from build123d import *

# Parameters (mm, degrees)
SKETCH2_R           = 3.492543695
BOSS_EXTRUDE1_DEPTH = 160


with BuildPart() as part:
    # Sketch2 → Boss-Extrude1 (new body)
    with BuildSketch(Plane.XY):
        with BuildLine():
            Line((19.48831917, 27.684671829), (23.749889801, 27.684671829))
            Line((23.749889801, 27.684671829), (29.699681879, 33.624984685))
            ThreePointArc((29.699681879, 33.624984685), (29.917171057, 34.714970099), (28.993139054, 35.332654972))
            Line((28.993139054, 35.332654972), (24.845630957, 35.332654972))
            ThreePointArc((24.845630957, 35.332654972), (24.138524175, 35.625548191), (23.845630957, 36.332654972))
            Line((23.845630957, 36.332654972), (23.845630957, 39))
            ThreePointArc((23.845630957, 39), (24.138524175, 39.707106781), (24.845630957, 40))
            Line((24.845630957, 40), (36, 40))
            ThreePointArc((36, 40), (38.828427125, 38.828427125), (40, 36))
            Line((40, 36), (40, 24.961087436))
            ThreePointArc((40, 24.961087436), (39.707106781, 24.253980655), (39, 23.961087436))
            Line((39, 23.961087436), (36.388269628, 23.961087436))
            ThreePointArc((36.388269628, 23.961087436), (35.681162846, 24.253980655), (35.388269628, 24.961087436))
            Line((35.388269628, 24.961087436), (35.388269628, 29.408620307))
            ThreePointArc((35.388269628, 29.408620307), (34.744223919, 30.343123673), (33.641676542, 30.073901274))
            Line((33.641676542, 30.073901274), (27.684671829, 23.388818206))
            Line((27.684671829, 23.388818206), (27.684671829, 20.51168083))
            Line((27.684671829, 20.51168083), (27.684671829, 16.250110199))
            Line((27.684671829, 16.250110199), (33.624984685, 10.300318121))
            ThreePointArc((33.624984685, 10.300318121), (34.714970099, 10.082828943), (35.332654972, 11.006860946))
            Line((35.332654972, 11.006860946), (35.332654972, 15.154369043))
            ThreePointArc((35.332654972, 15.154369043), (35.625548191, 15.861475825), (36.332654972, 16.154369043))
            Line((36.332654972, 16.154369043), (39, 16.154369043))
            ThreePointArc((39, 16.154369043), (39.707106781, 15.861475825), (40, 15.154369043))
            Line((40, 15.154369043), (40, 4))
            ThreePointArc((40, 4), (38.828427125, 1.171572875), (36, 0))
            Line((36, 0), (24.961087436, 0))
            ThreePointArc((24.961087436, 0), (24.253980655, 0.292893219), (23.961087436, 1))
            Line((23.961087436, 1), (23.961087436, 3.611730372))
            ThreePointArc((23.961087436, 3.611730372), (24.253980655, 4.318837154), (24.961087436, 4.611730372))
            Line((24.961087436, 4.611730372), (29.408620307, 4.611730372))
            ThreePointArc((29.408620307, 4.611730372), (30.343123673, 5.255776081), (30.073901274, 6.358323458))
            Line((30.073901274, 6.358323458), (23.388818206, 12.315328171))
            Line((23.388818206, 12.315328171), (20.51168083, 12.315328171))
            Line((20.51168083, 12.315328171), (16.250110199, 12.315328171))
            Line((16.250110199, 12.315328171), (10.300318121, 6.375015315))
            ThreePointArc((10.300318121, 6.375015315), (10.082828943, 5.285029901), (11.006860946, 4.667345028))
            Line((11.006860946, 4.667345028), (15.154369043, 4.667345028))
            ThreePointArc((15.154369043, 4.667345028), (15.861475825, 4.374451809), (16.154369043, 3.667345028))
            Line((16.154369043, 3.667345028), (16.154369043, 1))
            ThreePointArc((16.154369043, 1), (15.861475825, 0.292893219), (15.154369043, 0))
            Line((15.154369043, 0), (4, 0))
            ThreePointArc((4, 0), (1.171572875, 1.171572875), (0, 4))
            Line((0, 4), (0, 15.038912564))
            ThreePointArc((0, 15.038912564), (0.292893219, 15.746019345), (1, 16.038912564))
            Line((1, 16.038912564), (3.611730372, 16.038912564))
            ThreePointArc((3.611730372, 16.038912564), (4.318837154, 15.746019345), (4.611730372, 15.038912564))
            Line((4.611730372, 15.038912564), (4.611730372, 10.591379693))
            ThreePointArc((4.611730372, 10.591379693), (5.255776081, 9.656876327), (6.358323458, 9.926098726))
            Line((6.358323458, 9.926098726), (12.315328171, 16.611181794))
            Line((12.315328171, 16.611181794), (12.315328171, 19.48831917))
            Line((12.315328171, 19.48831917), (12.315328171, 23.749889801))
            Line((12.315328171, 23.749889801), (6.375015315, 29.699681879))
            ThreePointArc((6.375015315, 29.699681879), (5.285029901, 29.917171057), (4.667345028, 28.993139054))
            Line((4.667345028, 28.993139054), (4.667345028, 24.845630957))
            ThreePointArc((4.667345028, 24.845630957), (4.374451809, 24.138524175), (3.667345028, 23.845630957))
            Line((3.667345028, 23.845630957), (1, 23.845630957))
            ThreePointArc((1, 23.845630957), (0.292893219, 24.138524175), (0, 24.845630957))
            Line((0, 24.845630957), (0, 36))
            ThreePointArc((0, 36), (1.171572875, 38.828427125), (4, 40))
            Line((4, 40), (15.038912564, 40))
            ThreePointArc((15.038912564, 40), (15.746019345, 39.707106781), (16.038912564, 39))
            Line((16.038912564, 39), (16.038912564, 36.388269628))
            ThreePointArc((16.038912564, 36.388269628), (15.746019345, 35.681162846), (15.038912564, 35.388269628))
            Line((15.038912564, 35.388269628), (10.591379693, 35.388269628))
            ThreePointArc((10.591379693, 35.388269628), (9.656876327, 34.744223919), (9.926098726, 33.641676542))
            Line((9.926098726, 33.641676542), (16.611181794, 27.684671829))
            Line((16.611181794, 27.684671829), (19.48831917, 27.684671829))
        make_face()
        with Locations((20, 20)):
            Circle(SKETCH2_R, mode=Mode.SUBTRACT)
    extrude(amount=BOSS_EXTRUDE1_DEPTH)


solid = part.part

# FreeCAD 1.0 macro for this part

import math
import FreeCAD as App
import Part
import Sketcher

doc = App.newDocument("Part")
params = doc.addObject("Spreadsheet::Sheet", "Params")
for row, (alias, value) in enumerate([
    ("sketch1_radius", "1 mm"),
    ("sketch1_radius2", "4 mm"),
    ("pad1_length", "160 mm"),
], start=1):
    params.set(f"A{row}", alias)
    params.set(f"B{row}", "=" + value)
    params.setAlias(f"B{row}", alias)

body = doc.addObject("PartDesign::Body", "Body")

# Sketch on XY plane
sketch1 = doc.addObject("Sketcher::SketchObject", "Sketch")
body.addObject(sketch1)
sketch1.AttachmentSupport = (doc.XY_Plane, [""])
sketch1.MapMode = "FlatFace"
sketch1.addGeometry(Part.LineSegment(App.Vector(29.7, 33.6, 0), App.Vector(23.7, 27.7, 0)), False)
sketch1.addGeometry(Part.LineSegment(App.Vector(23.7, 27.7, 0), App.Vector(16.6, 27.7, 0)), False)
sketch1.addGeometry(Part.LineSegment(App.Vector(16.6, 27.7, 0), App.Vector(9.9, 33.6, 0)), False)
sketch1.addGeometry(Part.ArcOfCircle(Part.Circle(App.Vector(10.6, 34.4, 0), App.Vector(0, 0, 1), 1), math.radians(90), math.radians(228)), False)
sketch1.addGeometry(Part.LineSegment(App.Vector(10.6, 35.4, 0), App.Vector(15, 35.4, 0)), False)
sketch1.addGeometry(Part.ArcOfCircle(Part.Circle(App.Vector(15, 36.4, 0), App.Vector(0, 0, 1), 1), math.radians(-90), math.radians(0)), False)
sketch1.addGeometry(Part.LineSegment(App.Vector(16, 36.4, 0), App.Vector(16, 39, 0)), False)
sketch1.addGeometry(Part.ArcOfCircle(Part.Circle(App.Vector(15, 39, 0), App.Vector(0, 0, 1), 1), math.radians(0), math.radians(90)), False)
sketch1.addGeometry(Part.LineSegment(App.Vector(15, 40, 0), App.Vector(4, 40, 0)), False)
sketch1.addGeometry(Part.ArcOfCircle(Part.Circle(App.Vector(4, 36, 0), App.Vector(0, 0, 1), 4), math.radians(90), math.radians(180)), False)
sketch1.addGeometry(Part.LineSegment(App.Vector(0, 36, 0), App.Vector(0, 24.8, 0)), False)
sketch1.addGeometry(Part.ArcOfCircle(Part.Circle(App.Vector(1, 24.8, 0), App.Vector(0, 0, 1), 1), math.radians(180), math.radians(270)), False)
sketch1.addGeometry(Part.LineSegment(App.Vector(1, 23.8, 0), App.Vector(3.7, 23.8, 0)), False)
sketch1.addGeometry(Part.ArcOfCircle(Part.Circle(App.Vector(3.7, 24.8, 0), App.Vector(0, 0, 1), 1), math.radians(-90), math.radians(0)), False)
sketch1.addGeometry(Part.LineSegment(App.Vector(4.7, 24.8, 0), App.Vector(4.7, 29, 0)), False)
sketch1.addGeometry(Part.ArcOfCircle(Part.Circle(App.Vector(5.7, 29, 0), App.Vector(0, 0, 1), 1), math.radians(45), math.radians(180)), False)
sketch1.addGeometry(Part.LineSegment(App.Vector(6.4, 29.7, 0), App.Vector(12.3, 23.7, 0)), False)
sketch1.addGeometry(Part.LineSegment(App.Vector(12.3, 23.7, 0), App.Vector(12.3, 16.6, 0)), False)
sketch1.addGeometry(Part.LineSegment(App.Vector(12.3, 16.6, 0), App.Vector(6.4, 9.9, 0)), False)
sketch1.addGeometry(Part.ArcOfCircle(Part.Circle(App.Vector(5.6, 10.6, 0), App.Vector(0, 0, 1), 1), math.radians(-180), math.radians(-42)), False)
sketch1.addGeometry(Part.LineSegment(App.Vector(4.6, 10.6, 0), App.Vector(4.6, 15, 0)), False)
sketch1.addGeometry(Part.ArcOfCircle(Part.Circle(App.Vector(3.6, 15, 0), App.Vector(0, 0, 1), 1), math.radians(0), math.radians(90)), False)
sketch1.addGeometry(Part.LineSegment(App.Vector(3.6, 16, 0), App.Vector(1, 16, 0)), False)
sketch1.addGeometry(Part.ArcOfCircle(Part.Circle(App.Vector(1, 15, 0), App.Vector(0, 0, 1), 1), math.radians(90), math.radians(180)), False)
sketch1.addGeometry(Part.LineSegment(App.Vector(0, 15, 0), App.Vector(0, 4, 0)), False)
sketch1.addGeometry(Part.ArcOfCircle(Part.Circle(App.Vector(4, 4, 0), App.Vector(0, 0, 1), 4), math.radians(180), math.radians(270)), False)
sketch1.addGeometry(Part.LineSegment(App.Vector(4, 0, 0), App.Vector(15.2, 0, 0)), False)
sketch1.addGeometry(Part.ArcOfCircle(Part.Circle(App.Vector(15.2, 1, 0), App.Vector(0, 0, 1), 1), math.radians(-90), math.radians(0)), False)
sketch1.addGeometry(Part.LineSegment(App.Vector(16.2, 1, 0), App.Vector(16.2, 3.7, 0)), False)
sketch1.addGeometry(Part.ArcOfCircle(Part.Circle(App.Vector(15.2, 3.7, 0), App.Vector(0, 0, 1), 1), math.radians(0), math.radians(90)), False)
sketch1.addGeometry(Part.LineSegment(App.Vector(15.2, 4.7, 0), App.Vector(11, 4.7, 0)), False)
sketch1.addGeometry(Part.ArcOfCircle(Part.Circle(App.Vector(11, 5.7, 0), App.Vector(0, 0, 1), 1), math.radians(135), math.radians(270)), False)
sketch1.addGeometry(Part.LineSegment(App.Vector(10.3, 6.4, 0), App.Vector(16.3, 12.3, 0)), False)
sketch1.addGeometry(Part.LineSegment(App.Vector(16.3, 12.3, 0), App.Vector(23.4, 12.3, 0)), False)
sketch1.addGeometry(Part.LineSegment(App.Vector(23.4, 12.3, 0), App.Vector(30.1, 6.4, 0)), False)
sketch1.addGeometry(Part.ArcOfCircle(Part.Circle(App.Vector(29.4, 5.6, 0), App.Vector(0, 0, 1), 1), math.radians(-90), math.radians(48)), False)
sketch1.addGeometry(Part.LineSegment(App.Vector(29.4, 4.6, 0), App.Vector(25, 4.6, 0)), False)
sketch1.addGeometry(Part.ArcOfCircle(Part.Circle(App.Vector(25, 3.6, 0), App.Vector(0, 0, 1), 1), math.radians(90), math.radians(180)), False)
sketch1.addGeometry(Part.LineSegment(App.Vector(24, 3.6, 0), App.Vector(24, 1, 0)), False)
sketch1.addGeometry(Part.ArcOfCircle(Part.Circle(App.Vector(25, 1, 0), App.Vector(0, 0, 1), 1), math.radians(-180), math.radians(-90)), False)
sketch1.addGeometry(Part.LineSegment(App.Vector(25, 0, 0), App.Vector(36, 0, 0)), False)
sketch1.addGeometry(Part.ArcOfCircle(Part.Circle(App.Vector(36, 4, 0), App.Vector(0, 0, 1), 4), math.radians(-90), math.radians(0)), False)
sketch1.addGeometry(Part.LineSegment(App.Vector(40, 4, 0), App.Vector(40, 15.2, 0)), False)
sketch1.addGeometry(Part.ArcOfCircle(Part.Circle(App.Vector(39, 15.2, 0), App.Vector(0, 0, 1), 1), math.radians(0), math.radians(90)), False)
sketch1.addGeometry(Part.LineSegment(App.Vector(39, 16.2, 0), App.Vector(36.3, 16.2, 0)), False)
sketch1.addGeometry(Part.ArcOfCircle(Part.Circle(App.Vector(36.3, 15.2, 0), App.Vector(0, 0, 1), 1), math.radians(90), math.radians(180)), False)
sketch1.addGeometry(Part.LineSegment(App.Vector(35.3, 15.2, 0), App.Vector(35.3, 11, 0)), False)
sketch1.addGeometry(Part.ArcOfCircle(Part.Circle(App.Vector(34.3, 11, 0), App.Vector(0, 0, 1), 1), math.radians(-135), math.radians(0)), False)
sketch1.addGeometry(Part.LineSegment(App.Vector(33.6, 10.3, 0), App.Vector(27.7, 16.3, 0)), False)
sketch1.addGeometry(Part.LineSegment(App.Vector(27.7, 16.3, 0), App.Vector(27.7, 23.4, 0)), False)
sketch1.addGeometry(Part.LineSegment(App.Vector(27.7, 23.4, 0), App.Vector(33.6, 30.1, 0)), False)
sketch1.addGeometry(Part.ArcOfCircle(Part.Circle(App.Vector(34.4, 29.4, 0), App.Vector(0, 0, 1), 1), math.radians(0), math.radians(138)), False)
sketch1.addGeometry(Part.LineSegment(App.Vector(35.4, 29.4, 0), App.Vector(35.4, 25, 0)), False)
sketch1.addGeometry(Part.ArcOfCircle(Part.Circle(App.Vector(36.4, 25, 0), App.Vector(0, 0, 1), 1), math.radians(180), math.radians(270)), False)
sketch1.addGeometry(Part.LineSegment(App.Vector(36.4, 24, 0), App.Vector(39, 24, 0)), False)
sketch1.addGeometry(Part.ArcOfCircle(Part.Circle(App.Vector(39, 25, 0), App.Vector(0, 0, 1), 1), math.radians(-90), math.radians(0)), False)
sketch1.addGeometry(Part.LineSegment(App.Vector(40, 25, 0), App.Vector(40, 36, 0)), False)
sketch1.addGeometry(Part.ArcOfCircle(Part.Circle(App.Vector(36, 36, 0), App.Vector(0, 0, 1), 4), math.radians(0), math.radians(90)), False)
sketch1.addGeometry(Part.LineSegment(App.Vector(36, 40, 0), App.Vector(24.8, 40, 0)), False)
sketch1.addGeometry(Part.ArcOfCircle(Part.Circle(App.Vector(24.8, 39, 0), App.Vector(0, 0, 1), 1), math.radians(90), math.radians(180)), False)
sketch1.addGeometry(Part.LineSegment(App.Vector(23.8, 39, 0), App.Vector(23.8, 36.3, 0)), False)
sketch1.addGeometry(Part.ArcOfCircle(Part.Circle(App.Vector(24.8, 36.3, 0), App.Vector(0, 0, 1), 1), math.radians(180), math.radians(270)), False)
sketch1.addGeometry(Part.LineSegment(App.Vector(24.8, 35.3, 0), App.Vector(29, 35.3, 0)), False)
sketch1.addGeometry(Part.ArcOfCircle(Part.Circle(App.Vector(29, 34.3, 0), App.Vector(0, 0, 1), 1), math.radians(-45), math.radians(90)), False)
sketch1.addGeometry(Part.Circle(App.Vector(20, 20, 0), App.Vector(0, 0, 1), 3.5), False)
sketch1.addConstraint(Sketcher.Constraint("Coincident", 0, 2, 1, 1))
sketch1.addConstraint(Sketcher.Constraint("Coincident", 1, 2, 2, 1))
sketch1.addConstraint(Sketcher.Constraint("Tangent", 2, 2, 3, 2))
sketch1.addConstraint(Sketcher.Constraint("Tangent", 3, 1, 4, 1))
sketch1.addConstraint(Sketcher.Constraint("Tangent", 4, 2, 5, 1))
sketch1.addConstraint(Sketcher.Constraint("Tangent", 5, 2, 6, 1))
sketch1.addConstraint(Sketcher.Constraint("Tangent", 6, 2, 7, 1))
sketch1.addConstraint(Sketcher.Constraint("Tangent", 7, 2, 8, 1))
sketch1.addConstraint(Sketcher.Constraint("Tangent", 8, 2, 9, 1))
sketch1.addConstraint(Sketcher.Constraint("Tangent", 9, 2, 10, 1))
sketch1.addConstraint(Sketcher.Constraint("Tangent", 10, 2, 11, 1))
sketch1.addConstraint(Sketcher.Constraint("Tangent", 11, 2, 12, 1))
sketch1.addConstraint(Sketcher.Constraint("Tangent", 12, 2, 13, 1))
sketch1.addConstraint(Sketcher.Constraint("Tangent", 13, 2, 14, 1))
sketch1.addConstraint(Sketcher.Constraint("Tangent", 14, 2, 15, 2))
sketch1.addConstraint(Sketcher.Constraint("Tangent", 15, 1, 16, 1))
sketch1.addConstraint(Sketcher.Constraint("Coincident", 16, 2, 17, 1))
sketch1.addConstraint(Sketcher.Constraint("Coincident", 17, 2, 18, 1))
sketch1.addConstraint(Sketcher.Constraint("Tangent", 18, 2, 19, 2))
sketch1.addConstraint(Sketcher.Constraint("Tangent", 19, 1, 20, 1))
sketch1.addConstraint(Sketcher.Constraint("Tangent", 20, 2, 21, 1))
sketch1.addConstraint(Sketcher.Constraint("Tangent", 21, 2, 22, 1))
sketch1.addConstraint(Sketcher.Constraint("Tangent", 22, 2, 23, 1))
sketch1.addConstraint(Sketcher.Constraint("Tangent", 23, 2, 24, 1))
sketch1.addConstraint(Sketcher.Constraint("Tangent", 24, 2, 25, 1))
sketch1.addConstraint(Sketcher.Constraint("Tangent", 25, 2, 26, 1))
sketch1.addConstraint(Sketcher.Constraint("Tangent", 26, 2, 27, 1))
sketch1.addConstraint(Sketcher.Constraint("Tangent", 27, 2, 28, 1))
sketch1.addConstraint(Sketcher.Constraint("Tangent", 28, 2, 29, 1))
sketch1.addConstraint(Sketcher.Constraint("Tangent", 29, 2, 30, 1))
sketch1.addConstraint(Sketcher.Constraint("Tangent", 30, 2, 31, 2))
sketch1.addConstraint(Sketcher.Constraint("Tangent", 31, 1, 32, 1))
sketch1.addConstraint(Sketcher.Constraint("Coincident", 32, 2, 33, 1))
sketch1.addConstraint(Sketcher.Constraint("Coincident", 33, 2, 34, 1))
sketch1.addConstraint(Sketcher.Constraint("Tangent", 34, 2, 35, 2))
sketch1.addConstraint(Sketcher.Constraint("Tangent", 35, 1, 36, 1))
sketch1.addConstraint(Sketcher.Constraint("Tangent", 36, 2, 37, 1))
sketch1.addConstraint(Sketcher.Constraint("Tangent", 37, 2, 38, 1))
sketch1.addConstraint(Sketcher.Constraint("Tangent", 38, 2, 39, 1))
sketch1.addConstraint(Sketcher.Constraint("Tangent", 39, 2, 40, 1))
sketch1.addConstraint(Sketcher.Constraint("Tangent", 40, 2, 41, 1))
sketch1.addConstraint(Sketcher.Constraint("Tangent", 41, 2, 42, 1))
sketch1.addConstraint(Sketcher.Constraint("Tangent", 42, 2, 43, 1))
sketch1.addConstraint(Sketcher.Constraint("Tangent", 43, 2, 44, 1))
sketch1.addConstraint(Sketcher.Constraint("Tangent", 44, 2, 45, 1))
sketch1.addConstraint(Sketcher.Constraint("Tangent", 45, 2, 46, 1))
sketch1.addConstraint(Sketcher.Constraint("Tangent", 46, 2, 47, 2))
sketch1.addConstraint(Sketcher.Constraint("Tangent", 47, 1, 48, 1))
sketch1.addConstraint(Sketcher.Constraint("Coincident", 48, 2, 49, 1))
sketch1.addConstraint(Sketcher.Constraint("Coincident", 49, 2, 50, 1))
sketch1.addConstraint(Sketcher.Constraint("Tangent", 50, 2, 51, 2))
sketch1.addConstraint(Sketcher.Constraint("Tangent", 51, 1, 52, 1))
sketch1.addConstraint(Sketcher.Constraint("Tangent", 52, 2, 53, 1))
sketch1.addConstraint(Sketcher.Constraint("Tangent", 53, 2, 54, 1))
sketch1.addConstraint(Sketcher.Constraint("Tangent", 54, 2, 55, 1))
sketch1.addConstraint(Sketcher.Constraint("Tangent", 55, 2, 56, 1))
sketch1.addConstraint(Sketcher.Constraint("Tangent", 56, 2, 57, 1))
sketch1.addConstraint(Sketcher.Constraint("Tangent", 57, 2, 58, 1))
sketch1.addConstraint(Sketcher.Constraint("Tangent", 58, 2, 59, 1))
sketch1.addConstraint(Sketcher.Constraint("Tangent", 59, 2, 60, 1))
sketch1.addConstraint(Sketcher.Constraint("Tangent", 60, 2, 61, 1))
sketch1.addConstraint(Sketcher.Constraint("Tangent", 61, 2, 62, 1))
sketch1.addConstraint(Sketcher.Constraint("Tangent", 62, 2, 63, 2))
sketch1.addConstraint(Sketcher.Constraint("Tangent", 63, 1, 0, 1))
sketch1.addConstraint(Sketcher.Constraint("Horizontal", 1))
sketch1.addConstraint(Sketcher.Constraint("Horizontal", 4))
sketch1.addConstraint(Sketcher.Constraint("Vertical", 6))
sketch1.addConstraint(Sketcher.Constraint("Horizontal", 8))
sketch1.addConstraint(Sketcher.Constraint("Vertical", 10))
sketch1.addConstraint(Sketcher.Constraint("Horizontal", 12))
sketch1.addConstraint(Sketcher.Constraint("Vertical", 14))
sketch1.addConstraint(Sketcher.Constraint("Vertical", 17))
sketch1.addConstraint(Sketcher.Constraint("Vertical", 20))
sketch1.addConstraint(Sketcher.Constraint("Horizontal", 22))
sketch1.addConstraint(Sketcher.Constraint("Vertical", 24))
sketch1.addConstraint(Sketcher.Constraint("Horizontal", 26))
sketch1.addConstraint(Sketcher.Constraint("Vertical", 28))
sketch1.addConstraint(Sketcher.Constraint("Horizontal", 30))
sketch1.addConstraint(Sketcher.Constraint("Horizontal", 33))
sketch1.addConstraint(Sketcher.Constraint("Horizontal", 36))
sketch1.addConstraint(Sketcher.Constraint("Vertical", 38))
sketch1.addConstraint(Sketcher.Constraint("Horizontal", 40))
sketch1.addConstraint(Sketcher.Constraint("Vertical", 42))
sketch1.addConstraint(Sketcher.Constraint("Horizontal", 44))
sketch1.addConstraint(Sketcher.Constraint("Vertical", 46))
sketch1.addConstraint(Sketcher.Constraint("Vertical", 49))
sketch1.addConstraint(Sketcher.Constraint("Vertical", 52))
sketch1.addConstraint(Sketcher.Constraint("Horizontal", 54))
sketch1.addConstraint(Sketcher.Constraint("Vertical", 56))
sketch1.addConstraint(Sketcher.Constraint("Horizontal", 58))
sketch1.addConstraint(Sketcher.Constraint("Vertical", 60))
sketch1.addConstraint(Sketcher.Constraint("Horizontal", 62))
sketch1.addConstraint(Sketcher.Constraint("Equal", 3, 5))
sketch1.addConstraint(Sketcher.Constraint("Equal", 5, 7))
sketch1.addConstraint(Sketcher.Constraint("Equal", 7, 11))
sketch1.addConstraint(Sketcher.Constraint("Equal", 11, 13))
sketch1.addConstraint(Sketcher.Constraint("Equal", 13, 15))
sketch1.addConstraint(Sketcher.Constraint("Equal", 15, 19))
sketch1.addConstraint(Sketcher.Constraint("Equal", 19, 21))
sketch1.addConstraint(Sketcher.Constraint("Equal", 21, 23))
sketch1.addConstraint(Sketcher.Constraint("Equal", 9, 25))
sketch1.addConstraint(Sketcher.Constraint("Equal", 23, 27))
sketch1.addConstraint(Sketcher.Constraint("Equal", 27, 29))
sketch1.addConstraint(Sketcher.Constraint("Equal", 29, 31))
sketch1.addConstraint(Sketcher.Constraint("Equal", 31, 35))
sketch1.addConstraint(Sketcher.Constraint("Equal", 35, 37))
sketch1.addConstraint(Sketcher.Constraint("Equal", 37, 39))
sketch1.addConstraint(Sketcher.Constraint("Equal", 25, 41))
sketch1.addConstraint(Sketcher.Constraint("Equal", 39, 43))
sketch1.addConstraint(Sketcher.Constraint("Equal", 43, 45))
sketch1.addConstraint(Sketcher.Constraint("Equal", 45, 47))
sketch1.addConstraint(Sketcher.Constraint("Equal", 47, 51))
sketch1.addConstraint(Sketcher.Constraint("Equal", 51, 53))
sketch1.addConstraint(Sketcher.Constraint("Equal", 53, 55))
sketch1.addConstraint(Sketcher.Constraint("Equal", 41, 57))
sketch1.addConstraint(Sketcher.Constraint("Equal", 55, 59))
sketch1.addConstraint(Sketcher.Constraint("Equal", 59, 61))
sketch1.addConstraint(Sketcher.Constraint("Equal", 61, 63))
sketch1.addConstraint(Sketcher.Constraint("PointOnObject", 9, 2, -2))
sketch1.addConstraint(Sketcher.Constraint("PointOnObject", 23, 2, -2))
sketch1.addConstraint(Sketcher.Constraint("PointOnObject", 25, 2, -1))
sketch1.addConstraint(Sketcher.Constraint("PointOnObject", 39, 2, -1))
sketch1.addConstraint(Sketcher.Constraint("Perpendicular", 0, 16))
sketch1.addConstraint(Sketcher.Constraint("Perpendicular", 2, 18))
sketch1.addConstraint(Sketcher.Constraint("Perpendicular", 16, 32))
sketch1.addConstraint(Sketcher.Constraint("Perpendicular", 18, 34))
sketch1.addConstraint(Sketcher.Constraint("Perpendicular", 32, 48))
sketch1.addConstraint(Sketcher.Constraint("Perpendicular", 34, 50))
sketch1.addConstraint(Sketcher.Constraint("Horizontal", 9, 3, 57, 3))
sketch1.addConstraint(Sketcher.Constraint("Vertical", 43, 3, 55, 3))
sketch1.addConstraint(Sketcher.Constraint("Equal", 1, 33))
sketch1.addConstraint(Sketcher.Constraint("Equal", 4, 36))
sketch1.addConstraint(Sketcher.Constraint("Equal", 8, 40))
sketch1.addConstraint(Sketcher.Constraint("Equal", 12, 44))
sketch1.addConstraint(Sketcher.Constraint("Equal", 22, 54))
sketch1.addConstraint(Sketcher.Constraint("Equal", 26, 58))
sketch1.addConstraint(Sketcher.Constraint("Equal", 30, 62))
sketch1.addConstraint(Sketcher.Constraint("Equal", 54, 6))
sketch1.addConstraint(Sketcher.Constraint("Equal", 58, 10))
sketch1.addConstraint(Sketcher.Constraint("Equal", 62, 14))
sketch1.addConstraint(Sketcher.Constraint("Equal", 33, 17))
sketch1.addConstraint(Sketcher.Constraint("Equal", 36, 20))
sketch1.addConstraint(Sketcher.Constraint("Equal", 40, 24))
sketch1.addConstraint(Sketcher.Constraint("Equal", 44, 28))
sketch1.addConstraint(Sketcher.Constraint("Equal", 6, 38))
sketch1.addConstraint(Sketcher.Constraint("Equal", 10, 42))
sketch1.addConstraint(Sketcher.Constraint("Equal", 14, 46))
sketch1.addConstraint(Sketcher.Constraint("Equal", 17, 49))
sketch1.addConstraint(Sketcher.Constraint("Equal", 20, 52))
sketch1.addConstraint(Sketcher.Constraint("Equal", 24, 56))
sketch1.addConstraint(Sketcher.Constraint("Equal", 28, 60))
sketch1.addConstraint(Sketcher.Constraint("Equal", 0, 16))
sketch1.addConstraint(Sketcher.Constraint("Radius", 3, 1.0))
sketch1.addConstraint(Sketcher.Constraint("Radius", 9, 4.0))
sketch1.addConstraint(Sketcher.Constraint("DistanceY", -1, 1, 7, 3, 39.0))
sketch1.addConstraint(Sketcher.Constraint("DistanceX", -1, 1, 64, 3, 20.0))
sketch1.addConstraint(Sketcher.Constraint("DistanceY", -1, 1, 64, 3, 20.0))
sketch1.addConstraint(Sketcher.Constraint("Diameter", 64, 6.985087))
sketch1.addConstraint(Sketcher.Constraint("DistanceX", 1, 2, 1, 1, 7.138708))
sketch1.addConstraint(Sketcher.Constraint("DistanceX", 22, 2, 22, 1, 2.61173))
sketch1.addConstraint(Sketcher.Constraint("DistanceX", 26, 1, 26, 2, 11.154369))
sketch1.addConstraint(Sketcher.Constraint("DistanceX", 30, 2, 30, 1, 4.147508))
sketch1.addConstraint(Sketcher.Constraint("DistanceX", -1, 1, 2, 2, 9.926099))
sketch1.addConstraint(Sketcher.Constraint("Distance", 2, 8.954119))
sketch1.addConstraint(Sketcher.Constraint("DistanceX", 4, 1, 4, 2, 4.447533))
sketch1.addConstraint(Sketcher.Constraint("DistanceX", 8, 2, 8, 1, 11.038913))
sketch1.addConstraint(Sketcher.Constraint("DistanceX", 12, 1, 12, 2, 2.667345))
sketch1.setExpression("Constraints[152]", "Params.sketch1_radius")
sketch1.setExpression("Constraints[153]", "Params.sketch1_radius2")
pad1 = doc.addObject("PartDesign::Pad", "Pad")
body.addObject(pad1)
pad1.Profile = sketch1
pad1.setExpression("Length", "Params.pad1_length")

doc.recompute()
